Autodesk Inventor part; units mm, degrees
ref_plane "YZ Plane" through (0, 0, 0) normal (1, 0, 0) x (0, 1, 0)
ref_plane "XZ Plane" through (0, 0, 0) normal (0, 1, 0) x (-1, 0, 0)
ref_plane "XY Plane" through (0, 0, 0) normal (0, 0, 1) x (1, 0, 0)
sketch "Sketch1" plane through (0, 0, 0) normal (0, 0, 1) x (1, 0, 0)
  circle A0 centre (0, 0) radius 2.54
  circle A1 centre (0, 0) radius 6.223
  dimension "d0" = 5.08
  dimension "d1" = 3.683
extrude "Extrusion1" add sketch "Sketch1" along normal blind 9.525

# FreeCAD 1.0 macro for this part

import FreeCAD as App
import Part
import Sketcher
from FreeCAD import Vector
Q = App.Units.Quantity

doc = App.newDocument("Part")
body = doc.addObject("PartDesign::Body", "Body")

sketch1 = doc.addObject("Sketcher::SketchObject", "Sketch")
body.addObject(sketch1)
sketch1.AttachmentSupport = (doc.XY_Plane, [""])
sketch1.MapMode = "FlatFace"
sketch1.addGeometry([
    Part.Circle(Vector(0, 0, 0), Vector(0, 0, 1), 6.2),
    Part.Circle(Vector(0, 0, 0), Vector(0, 0, 1), 2.5),
], False)
sketch1.addConstraint([
    Sketcher.Constraint("Coincident", 0, 3, -1, 1),
    Sketcher.Constraint("Coincident", 1, 3, -1, 1),
    Sketcher.Constraint("Diameter", 1, Q("0.2 in")),
    Sketcher.Constraint("Diameter", 0, Q("0.49 in")),
])
pad1 = doc.addObject("PartDesign::Pad", "Pad")
body.addObject(pad1)
pad1.Profile = sketch1
pad1.Length = Q("0.375 in")

doc.recompute()
